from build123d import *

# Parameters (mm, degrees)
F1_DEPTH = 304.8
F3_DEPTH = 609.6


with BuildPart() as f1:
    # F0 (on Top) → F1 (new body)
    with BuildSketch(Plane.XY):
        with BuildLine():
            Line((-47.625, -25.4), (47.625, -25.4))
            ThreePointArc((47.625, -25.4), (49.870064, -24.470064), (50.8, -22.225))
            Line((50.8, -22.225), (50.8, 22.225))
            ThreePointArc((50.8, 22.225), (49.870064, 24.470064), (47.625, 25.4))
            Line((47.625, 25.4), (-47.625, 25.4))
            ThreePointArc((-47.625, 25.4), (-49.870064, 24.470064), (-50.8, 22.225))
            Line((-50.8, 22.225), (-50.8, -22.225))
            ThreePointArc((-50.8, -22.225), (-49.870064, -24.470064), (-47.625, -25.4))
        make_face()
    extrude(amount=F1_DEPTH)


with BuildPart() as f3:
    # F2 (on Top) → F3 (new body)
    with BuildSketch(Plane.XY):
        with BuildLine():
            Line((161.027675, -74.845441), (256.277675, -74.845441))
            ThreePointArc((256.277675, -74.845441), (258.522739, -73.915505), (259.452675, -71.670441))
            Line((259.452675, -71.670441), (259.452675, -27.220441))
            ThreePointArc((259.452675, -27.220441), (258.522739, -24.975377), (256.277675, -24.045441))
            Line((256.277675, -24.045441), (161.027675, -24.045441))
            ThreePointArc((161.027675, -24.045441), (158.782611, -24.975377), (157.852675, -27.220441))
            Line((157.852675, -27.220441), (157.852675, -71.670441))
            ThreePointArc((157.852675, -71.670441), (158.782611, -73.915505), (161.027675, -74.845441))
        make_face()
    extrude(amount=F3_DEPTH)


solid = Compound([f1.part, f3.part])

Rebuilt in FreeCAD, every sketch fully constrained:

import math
import FreeCAD as App
import Part
import Sketcher

V = App.Vector
Q = App.Units.Quantity

doc = App.newDocument("Part")
body = doc.addObject("PartDesign::Body", "Body")

sketch1 = body.newObject("Sketcher::SketchObject", "Sketch")
sketch1.AttachmentSupport = (doc.getObject("XY_Plane"), [""])
sketch1.MapMode = "FlatFace"
sketch1.addGeometry(Part.LineSegment(V(-47.625, -25.4, 0), V(47.625, -25.4, 0)), False)
sketch1.addGeometry(Part.ArcOfCircle(Part.Circle(V(47.625, -22.225, 0), V(0, 0, 1), 3.175), math.radians(-89.999998), math.radians(-0.000002)), False)
sketch1.addGeometry(Part.LineSegment(V(50.8, -22.225, 0), V(50.8, 22.225, 0)), False)
sketch1.addGeometry(Part.ArcOfCircle(Part.Circle(V(47.625, 22.225, 0), V(0, 0, 1), 3.175), math.radians(0.000002), math.radians(89.999998)), False)
sketch1.addGeometry(Part.LineSegment(V(47.625, 25.4, 0), V(-47.625, 25.4, 0)), False)
sketch1.addGeometry(Part.ArcOfCircle(Part.Circle(V(-47.625, 22.225, 0), V(0, 0, 1), 3.175), math.radians(90.000002), math.radians(179.999998)), False)
sketch1.addGeometry(Part.LineSegment(V(-50.8, 22.225, 0), V(-50.8, -22.225, 0)), False)
sketch1.addGeometry(Part.ArcOfCircle(Part.Circle(V(-47.625, -22.225, 0), V(0, 0, 1), 3.175), math.radians(-179.999998), math.radians(-90.000002)), False)
sketch1.addConstraint(Sketcher.Constraint("Tangent", 0, 2, 1, 1))
sketch1.addConstraint(Sketcher.Constraint("Tangent", 1, 2, 2, 1))
sketch1.addConstraint(Sketcher.Constraint("Tangent", 2, 2, 3, 1))
sketch1.addConstraint(Sketcher.Constraint("Tangent", 3, 2, 4, 1))
sketch1.addConstraint(Sketcher.Constraint("Tangent", 4, 2, 5, 1))
sketch1.addConstraint(Sketcher.Constraint("Tangent", 5, 2, 6, 1))
sketch1.addConstraint(Sketcher.Constraint("Tangent", 6, 2, 7, 1))
sketch1.addConstraint(Sketcher.Constraint("Tangent", 7, 2, 0, 1))
sketch1.addConstraint(Sketcher.Constraint("Horizontal", 0))
sketch1.addConstraint(Sketcher.Constraint("Vertical", 2))
sketch1.addConstraint(Sketcher.Constraint("Horizontal", 4))
sketch1.addConstraint(Sketcher.Constraint("Vertical", 6))
sketch1.addConstraint(Sketcher.Constraint("Equal", 1, 3))
sketch1.addConstraint(Sketcher.Constraint("Equal", 3, 5))
sketch1.addConstraint(Sketcher.Constraint("Equal", 5, 7))
sketch1.addConstraint(Sketcher.Constraint("Symmetric", 1, 3, 5, 3, -1, 1))
sketch1.addConstraint(Sketcher.Constraint("DistanceY", 0, 2, -1, 1, Q("1 in")))
sketch1.addConstraint(Sketcher.Constraint("DistanceX", -1, 1, 1, 2, Q("2 in")))
sketch1.addConstraint(Sketcher.Constraint("Radius", 1, Q("0.125 in")))
pad1 = body.newObject("PartDesign::Pad", "Pad")
pad1.Profile = sketch1
pad1.Length = Q("12 in")
body2 = doc.addObject("PartDesign::Body", "Body001")

sketch2 = body2.newObject("Sketcher::SketchObject", "Sketch001")
sketch2.AttachmentSupport = (doc.getObject("XY_Plane001"), [""])
sketch2.MapMode = "FlatFace"
sketch2.addGeometry(Part.LineSegment(V(161.027675, -74.845441, 0), V(256.277675, -74.845441, 0)), False)
sketch2.addGeometry(Part.ArcOfCircle(Part.Circle(V(256.277675, -71.670441, 0), V(0, 0, 1), 3.175), math.radians(-89.999998), math.radians(-0.000002)), False)
sketch2.addGeometry(Part.LineSegment(V(259.452675, -71.670441, 0), V(259.452675, -27.220441, 0)), False)
sketch2.addGeometry(Part.ArcOfCircle(Part.Circle(V(256.277675, -27.220441, 0), V(0, 0, 1), 3.175), math.radians(0.000002), math.radians(89.999998)), False)
sketch2.addGeometry(Part.LineSegment(V(256.277675, -24.045441, 0), V(161.027675, -24.045441, 0)), False)
sketch2.addGeometry(Part.ArcOfCircle(Part.Circle(V(161.027675, -27.220441, 0), V(0, 0, 1), 3.175), math.radians(90.000002), math.radians(179.999998)), False)
sketch2.addGeometry(Part.LineSegment(V(157.852675, -27.220441, 0), V(157.852675, -71.670441, 0)), False)
sketch2.addGeometry(Part.ArcOfCircle(Part.Circle(V(161.027675, -71.670441, 0), V(0, 0, 1), 3.175), math.radians(-179.999998), math.radians(-90.000002)), False)
sketch2.addConstraint(Sketcher.Constraint("Tangent", 0, 2, 1, 1))
sketch2.addConstraint(Sketcher.Constraint("Tangent", 1, 2, 2, 1))
sketch2.addConstraint(Sketcher.Constraint("Tangent", 2, 2, 3, 1))
sketch2.addConstraint(Sketcher.Constraint("Tangent", 3, 2, 4, 1))
sketch2.addConstraint(Sketcher.Constraint("Tangent", 4, 2, 5, 1))
sketch2.addConstraint(Sketcher.Constraint("Tangent", 5, 2, 6, 1))
sketch2.addConstraint(Sketcher.Constraint("Tangent", 6, 2, 7, 1))
sketch2.addConstraint(Sketcher.Constraint("Tangent", 7, 2, 0, 1))
sketch2.addConstraint(Sketcher.Constraint("Horizontal", 0))
sketch2.addConstraint(Sketcher.Constraint("Vertical", 2))
sketch2.addConstraint(Sketcher.Constraint("Horizontal", 4))
sketch2.addConstraint(Sketcher.Constraint("Vertical", 6))
sketch2.addConstraint(Sketcher.Constraint("Equal", 1, 3))
sketch2.addConstraint(Sketcher.Constraint("Equal", 3, 5))
sketch2.addConstraint(Sketcher.Constraint("Equal", 5, 7))
sketch2.addConstraint(Sketcher.Constraint("Radius", 1, Q("0.125 in")))
sketch2.addConstraint(Sketcher.Constraint("DistanceY", 0, 2, 3, 2, Q("2 in")))
sketch2.addConstraint(Sketcher.Constraint("DistanceX", 0, 1, 0, 2, Q("3.75 in")))
sketch2.addConstraint(Sketcher.Constraint("DistanceY", 1, 3, -1, 1, Q("71.670441 mm")))
sketch2.addConstraint(Sketcher.Constraint("DistanceX", -1, 1, 1, 3, Q("256.277675 mm")))
pad2 = body2.newObject("PartDesign::Pad", "Pad001")
pad2.Profile = sketch2
pad2.Length = Q("24 in")

doc.recompute()
